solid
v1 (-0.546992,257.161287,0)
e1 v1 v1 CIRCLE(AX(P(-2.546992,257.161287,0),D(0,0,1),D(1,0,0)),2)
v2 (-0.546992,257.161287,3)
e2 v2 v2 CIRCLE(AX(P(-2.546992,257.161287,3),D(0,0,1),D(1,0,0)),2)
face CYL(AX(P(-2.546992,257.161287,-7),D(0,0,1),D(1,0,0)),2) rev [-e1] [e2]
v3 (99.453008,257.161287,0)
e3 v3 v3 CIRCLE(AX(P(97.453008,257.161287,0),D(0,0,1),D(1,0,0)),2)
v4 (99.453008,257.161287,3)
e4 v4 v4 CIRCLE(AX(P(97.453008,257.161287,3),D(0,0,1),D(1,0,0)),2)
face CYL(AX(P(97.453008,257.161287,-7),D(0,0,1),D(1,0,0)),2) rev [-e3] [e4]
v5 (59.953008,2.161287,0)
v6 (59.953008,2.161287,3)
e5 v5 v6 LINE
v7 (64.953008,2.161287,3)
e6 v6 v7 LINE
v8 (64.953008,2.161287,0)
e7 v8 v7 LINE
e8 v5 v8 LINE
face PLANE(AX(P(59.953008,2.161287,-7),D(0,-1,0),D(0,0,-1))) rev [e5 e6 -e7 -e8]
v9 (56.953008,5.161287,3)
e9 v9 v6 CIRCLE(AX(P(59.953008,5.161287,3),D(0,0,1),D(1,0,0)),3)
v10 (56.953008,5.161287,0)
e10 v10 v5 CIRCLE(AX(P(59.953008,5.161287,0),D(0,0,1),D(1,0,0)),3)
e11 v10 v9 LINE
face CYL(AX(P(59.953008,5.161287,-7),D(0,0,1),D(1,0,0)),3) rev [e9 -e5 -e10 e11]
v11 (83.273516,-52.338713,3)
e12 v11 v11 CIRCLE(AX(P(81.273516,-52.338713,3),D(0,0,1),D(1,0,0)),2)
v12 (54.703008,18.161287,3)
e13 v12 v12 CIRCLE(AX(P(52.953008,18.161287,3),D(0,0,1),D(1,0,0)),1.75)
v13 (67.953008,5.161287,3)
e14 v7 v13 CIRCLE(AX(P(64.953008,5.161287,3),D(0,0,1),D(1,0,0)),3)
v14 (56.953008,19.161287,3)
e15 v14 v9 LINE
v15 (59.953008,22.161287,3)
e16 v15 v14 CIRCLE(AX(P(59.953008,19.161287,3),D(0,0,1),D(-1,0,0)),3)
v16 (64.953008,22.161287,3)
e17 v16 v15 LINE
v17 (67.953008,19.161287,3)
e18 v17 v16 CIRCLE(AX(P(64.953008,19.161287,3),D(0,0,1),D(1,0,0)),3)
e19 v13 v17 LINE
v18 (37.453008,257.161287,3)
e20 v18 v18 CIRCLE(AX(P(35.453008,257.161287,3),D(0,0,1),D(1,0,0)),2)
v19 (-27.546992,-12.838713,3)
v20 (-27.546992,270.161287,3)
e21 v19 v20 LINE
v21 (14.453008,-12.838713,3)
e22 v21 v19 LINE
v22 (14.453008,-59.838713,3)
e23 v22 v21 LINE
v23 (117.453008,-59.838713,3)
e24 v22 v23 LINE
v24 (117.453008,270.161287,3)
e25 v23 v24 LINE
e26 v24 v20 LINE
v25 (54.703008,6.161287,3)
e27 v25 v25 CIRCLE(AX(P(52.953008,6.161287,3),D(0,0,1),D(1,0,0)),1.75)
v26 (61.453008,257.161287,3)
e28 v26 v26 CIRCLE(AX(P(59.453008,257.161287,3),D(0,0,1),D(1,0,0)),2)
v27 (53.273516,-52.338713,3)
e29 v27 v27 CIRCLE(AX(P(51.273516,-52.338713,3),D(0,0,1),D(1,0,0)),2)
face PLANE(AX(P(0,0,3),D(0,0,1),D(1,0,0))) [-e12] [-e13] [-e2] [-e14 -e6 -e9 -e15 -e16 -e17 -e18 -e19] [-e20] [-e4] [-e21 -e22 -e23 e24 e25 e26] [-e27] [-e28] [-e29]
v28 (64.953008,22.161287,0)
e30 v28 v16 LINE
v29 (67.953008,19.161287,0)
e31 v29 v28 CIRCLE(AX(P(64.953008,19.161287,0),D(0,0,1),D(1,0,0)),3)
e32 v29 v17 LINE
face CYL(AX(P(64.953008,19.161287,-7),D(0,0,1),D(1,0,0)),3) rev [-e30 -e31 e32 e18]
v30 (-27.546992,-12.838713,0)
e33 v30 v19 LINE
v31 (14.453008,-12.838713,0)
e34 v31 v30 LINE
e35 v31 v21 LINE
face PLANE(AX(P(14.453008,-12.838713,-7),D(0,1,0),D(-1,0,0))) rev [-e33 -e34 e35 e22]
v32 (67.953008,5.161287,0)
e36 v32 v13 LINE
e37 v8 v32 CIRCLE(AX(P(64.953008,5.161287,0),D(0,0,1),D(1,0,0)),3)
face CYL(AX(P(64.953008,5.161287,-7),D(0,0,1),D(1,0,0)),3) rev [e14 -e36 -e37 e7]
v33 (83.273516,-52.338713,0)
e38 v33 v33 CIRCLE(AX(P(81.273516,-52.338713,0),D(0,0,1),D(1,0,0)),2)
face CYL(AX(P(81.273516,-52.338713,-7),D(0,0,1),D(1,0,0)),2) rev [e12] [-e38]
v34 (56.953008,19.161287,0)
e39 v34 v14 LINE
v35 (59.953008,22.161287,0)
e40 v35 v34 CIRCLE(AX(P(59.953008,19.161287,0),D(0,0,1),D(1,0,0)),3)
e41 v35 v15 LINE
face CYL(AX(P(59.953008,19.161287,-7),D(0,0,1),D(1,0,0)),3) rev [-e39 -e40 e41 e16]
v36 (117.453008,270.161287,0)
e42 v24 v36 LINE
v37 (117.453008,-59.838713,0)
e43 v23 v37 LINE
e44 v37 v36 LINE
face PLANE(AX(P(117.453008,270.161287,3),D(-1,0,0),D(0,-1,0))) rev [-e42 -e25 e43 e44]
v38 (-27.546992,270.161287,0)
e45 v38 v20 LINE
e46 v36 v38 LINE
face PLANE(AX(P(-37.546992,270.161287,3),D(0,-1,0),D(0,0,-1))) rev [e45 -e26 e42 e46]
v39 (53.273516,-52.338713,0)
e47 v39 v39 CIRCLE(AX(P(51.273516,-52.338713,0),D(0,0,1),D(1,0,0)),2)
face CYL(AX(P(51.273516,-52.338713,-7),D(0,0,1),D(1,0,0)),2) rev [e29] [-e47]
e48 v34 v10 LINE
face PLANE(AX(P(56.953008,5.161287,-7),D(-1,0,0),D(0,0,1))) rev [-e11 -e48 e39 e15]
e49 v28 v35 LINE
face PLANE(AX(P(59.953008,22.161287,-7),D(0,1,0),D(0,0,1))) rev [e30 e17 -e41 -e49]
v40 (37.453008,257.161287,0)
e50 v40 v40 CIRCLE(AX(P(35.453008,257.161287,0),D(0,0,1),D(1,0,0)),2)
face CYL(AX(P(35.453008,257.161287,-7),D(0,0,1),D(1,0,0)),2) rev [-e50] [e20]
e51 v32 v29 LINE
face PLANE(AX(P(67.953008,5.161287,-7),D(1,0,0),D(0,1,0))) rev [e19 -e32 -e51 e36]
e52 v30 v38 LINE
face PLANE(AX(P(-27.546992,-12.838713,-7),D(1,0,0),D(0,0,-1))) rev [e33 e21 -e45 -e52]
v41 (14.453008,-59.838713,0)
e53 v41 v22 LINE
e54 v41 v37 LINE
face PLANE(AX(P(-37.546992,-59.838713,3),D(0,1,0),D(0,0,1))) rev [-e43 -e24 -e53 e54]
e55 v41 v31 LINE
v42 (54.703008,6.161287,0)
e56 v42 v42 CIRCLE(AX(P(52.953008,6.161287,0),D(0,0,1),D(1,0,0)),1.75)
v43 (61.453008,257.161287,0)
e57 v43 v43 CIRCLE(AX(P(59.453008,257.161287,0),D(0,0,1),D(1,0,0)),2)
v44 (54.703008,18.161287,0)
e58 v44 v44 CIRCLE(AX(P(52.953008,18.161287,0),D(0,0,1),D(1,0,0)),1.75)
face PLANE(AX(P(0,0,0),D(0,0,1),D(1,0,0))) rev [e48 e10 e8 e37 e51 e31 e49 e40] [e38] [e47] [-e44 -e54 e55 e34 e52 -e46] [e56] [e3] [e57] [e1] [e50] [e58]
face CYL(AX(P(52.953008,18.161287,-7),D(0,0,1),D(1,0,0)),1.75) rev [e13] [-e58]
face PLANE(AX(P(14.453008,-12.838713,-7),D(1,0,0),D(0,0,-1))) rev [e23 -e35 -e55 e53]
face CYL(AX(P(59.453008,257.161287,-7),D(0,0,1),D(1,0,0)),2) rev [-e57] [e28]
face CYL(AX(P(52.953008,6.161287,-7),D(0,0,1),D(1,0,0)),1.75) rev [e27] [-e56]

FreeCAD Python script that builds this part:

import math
import FreeCAD as App
import Part
import Sketcher
Q = App.Units.Quantity

doc = App.newDocument("Part")
params = doc.addObject("Spreadsheet::Sheet", "Params")
for row, (alias, value) in enumerate([
    ("sketch1_width", "155 mm"),
    ("sketch1_height", "330 mm"),
    ("pad1_length", "3 mm"),
    ("sketch2_width", "10 mm"),
    ("sketch2_width2", "52 mm"),
    ("sketch2_height", "283 mm"),
    ("sketch2_height2", "330 mm"),
    ("pocket1_length", "10 mm"),
    ("sketch3_diameter", "4 mm"),
    ("pocket2_length", "10 mm"),
    ("sketch4_radius", "3 mm"),
    ("sketch4_diameter", "3.5 mm"),
    ("sketch4_width", "5 mm"),
    ("sketch4_height", "14 mm"),
    ("pocket3_length", "10 mm"),
], start=1):
    params.set(f"A{row}", alias)
    params.set(f"B{row}", "=" + value)
    params.setAlias(f"B{row}", alias)

body = doc.addObject("PartDesign::Body", "Body")

# Sketch on XY plane
sketch1 = body.newObject("Sketcher::SketchObject", "Sketch")
sketch1.AttachmentSupport = (doc.getObject("XY_Plane"), [""])
sketch1.MapMode = "FlatFace"
sketch1.addGeometry(Part.LineSegment(App.Vector(-37.546992, 270.161287, 0), App.Vector(-37.546992, -59.838713, 0)), False)
sketch1.addGeometry(Part.LineSegment(App.Vector(-37.546992, -59.838713, 0), App.Vector(117.453008, -59.838713, 0)), False)
sketch1.addGeometry(Part.LineSegment(App.Vector(117.453008, -59.838713, 0), App.Vector(117.453008, 270.161287, 0)), False)
sketch1.addGeometry(Part.LineSegment(App.Vector(117.453008, 270.161287, 0), App.Vector(-37.546992, 270.161287, 0)), False)
sketch1.addConstraint(Sketcher.Constraint("Coincident", 0, 2, 1, 1))
sketch1.addConstraint(Sketcher.Constraint("Coincident", 1, 2, 2, 1))
sketch1.addConstraint(Sketcher.Constraint("Coincident", 2, 2, 3, 1))
sketch1.addConstraint(Sketcher.Constraint("Coincident", 3, 2, 0, 1))
sketch1.addConstraint(Sketcher.Constraint("Vertical", 0))
sketch1.addConstraint(Sketcher.Constraint("Horizontal", 1))
sketch1.addConstraint(Sketcher.Constraint("Vertical", 2))
sketch1.addConstraint(Sketcher.Constraint("Horizontal", 3))
sketch1.addConstraint(Sketcher.Constraint("DistanceX", 1, 1, 1, 2, Q("155 mm")))
sketch1.addConstraint(Sketcher.Constraint("DistanceY", 0, 2, 0, 1, Q("330 mm")))
sketch1.addConstraint(Sketcher.Constraint("DistanceX", 0, 2, -1, 1, Q("37.546992 mm")))
sketch1.addConstraint(Sketcher.Constraint("DistanceY", 0, 2, -1, 1, Q("59.838713 mm")))
sketch1.setExpression("Constraints[8]", "Params.sketch1_width")
sketch1.setExpression("Constraints[9]", "Params.sketch1_height")
pad1 = body.newObject("PartDesign::Pad", "Pad")
pad1.Profile = sketch1
pad1.setExpression("Length", "Params.pad1_length")

# Sketch on XY plane
sketch2 = body.newObject("Sketcher::SketchObject", "Sketch001")
sketch2.AttachmentSupport = (doc.getObject("XY_Plane"), [""])
sketch2.MapMode = "FlatFace"
sketch2.AttachmentOffset = App.Placement(App.Vector(0, 0, 3), App.Rotation())
sketch2.addGeometry(Part.LineSegment(App.Vector(-27.546992, -12.838713, 0), App.Vector(-27.546992, 270.161287, 0)), False)
sketch2.addGeometry(Part.LineSegment(App.Vector(-27.546992, 270.161287, 0), App.Vector(-37.546992, 270.161287, 0)), False)
sketch2.addGeometry(Part.LineSegment(App.Vector(-37.546992, 270.161287, 0), App.Vector(-37.546992, -59.838713, 0)), False)
sketch2.addGeometry(Part.LineSegment(App.Vector(-37.546992, -59.838713, 0), App.Vector(14.453008, -59.838713, 0)), False)
sketch2.addGeometry(Part.LineSegment(App.Vector(14.453008, -59.838713, 0), App.Vector(14.453008, -12.838713, 0)), False)
sketch2.addGeometry(Part.LineSegment(App.Vector(14.453008, -12.838713, 0), App.Vector(-27.546992, -12.838713, 0)), False)
sketch2.addConstraint(Sketcher.Constraint("Coincident", 0, 2, 1, 1))
sketch2.addConstraint(Sketcher.Constraint("Coincident", 1, 2, 2, 1))
sketch2.addConstraint(Sketcher.Constraint("Coincident", 2, 2, 3, 1))
sketch2.addConstraint(Sketcher.Constraint("Coincident", 3, 2, 4, 1))
sketch2.addConstraint(Sketcher.Constraint("Coincident", 4, 2, 5, 1))
sketch2.addConstraint(Sketcher.Constraint("Coincident", 5, 2, 0, 1))
sketch2.addConstraint(Sketcher.Constraint("Vertical", 0))
sketch2.addConstraint(Sketcher.Constraint("Horizontal", 1))
sketch2.addConstraint(Sketcher.Constraint("Vertical", 2))
sketch2.addConstraint(Sketcher.Constraint("Horizontal", 3))
sketch2.addConstraint(Sketcher.Constraint("Vertical", 4))
sketch2.addConstraint(Sketcher.Constraint("Horizontal", 5))
sketch2.addConstraint(Sketcher.Constraint("DistanceX", 1, 2, 1, 1, Q("10 mm")))
sketch2.addConstraint(Sketcher.Constraint("DistanceX", 3, 1, 3, 2, Q("52 mm")))
sketch2.addConstraint(Sketcher.Constraint("DistanceY", 0, 1, 0, 2, Q("283 mm")))
sketch2.addConstraint(Sketcher.Constraint("DistanceY", 2, 2, 2, 1, Q("330 mm")))
sketch2.addConstraint(Sketcher.Constraint("DistanceX", 0, 2, -1, 1, Q("27.546992 mm")))
sketch2.addConstraint(Sketcher.Constraint("DistanceY", -1, 1, 0, 2, Q("270.161287 mm")))
sketch2.setExpression("Constraints[12]", "Params.sketch2_width")
sketch2.setExpression("Constraints[13]", "Params.sketch2_width2")
sketch2.setExpression("Constraints[14]", "Params.sketch2_height")
sketch2.setExpression("Constraints[15]", "Params.sketch2_height2")
pocket1 = body.newObject("PartDesign::Pocket", "Pocket")
pocket1.Profile = sketch2
pocket1.setExpression("Length", "Params.pocket1_length")

# Sketch on XY plane
sketch3 = body.newObject("Sketcher::SketchObject", "Sketch002")
sketch3.AttachmentSupport = (doc.getObject("XY_Plane"), [""])
sketch3.MapMode = "FlatFace"
sketch3.AttachmentOffset = App.Placement(App.Vector(0, 0, 3), App.Rotation())
sketch3.addGeometry(Part.Circle(App.Vector(51.273516, -52.338713, 0), App.Vector(0, 0, 1), 2), False)
sketch3.addGeometry(Part.Circle(App.Vector(81.273516, -52.338713, 0), App.Vector(0, 0, 1), 2), False)
sketch3.addGeometry(Part.Circle(App.Vector(-2.546992, 257.161287, 0), App.Vector(0, 0, 1), 2), False)
sketch3.addGeometry(Part.Circle(App.Vector(35.453008, 257.161287, 0), App.Vector(0, 0, 1), 2), False)
sketch3.addGeometry(Part.Circle(App.Vector(59.453008, 257.161287, 0), App.Vector(0, 0, 1), 2), False)
sketch3.addGeometry(Part.Circle(App.Vector(97.453008, 257.161287, 0), App.Vector(0, 0, 1), 2), False)
sketch3.addConstraint(Sketcher.Constraint("Equal", 0, 1))
sketch3.addConstraint(Sketcher.Constraint("Equal", 1, 2))
sketch3.addConstraint(Sketcher.Constraint("Equal", 2, 3))
sketch3.addConstraint(Sketcher.Constraint("Equal", 3, 4))
sketch3.addConstraint(Sketcher.Constraint("Equal", 4, 5))
sketch3.addConstraint(Sketcher.Constraint("Horizontal", 0, 3, 1, 3))
sketch3.addConstraint(Sketcher.Constraint("Horizontal", 2, 3, 3, 3))
sketch3.addConstraint(Sketcher.Constraint("Horizontal", 3, 3, 4, 3))
sketch3.addConstraint(Sketcher.Constraint("Horizontal", 4, 3, 5, 3))
sketch3.addConstraint(Sketcher.Constraint("Diameter", 0, Q("4 mm")))
sketch3.addConstraint(Sketcher.Constraint("DistanceX", 0, 3, 1, 3, Q("30 mm")))
sketch3.addConstraint(Sketcher.Constraint("DistanceX", 2, 3, 3, 3, Q("38 mm")))
sketch3.addConstraint(Sketcher.Constraint("DistanceX", 3, 3, 4, 3, Q("24 mm")))
sketch3.addConstraint(Sketcher.Constraint("DistanceX", 4, 3, 5, 3, Q("38 mm")))
sketch3.addConstraint(Sketcher.Constraint("DistanceY", 0, 3, 2, 3, Q("309.5 mm")))
sketch3.addConstraint(Sketcher.Constraint("DistanceX", 2, 3, -1, 1, Q("2.546992 mm")))
sketch3.addConstraint(Sketcher.Constraint("DistanceX", 2, 3, 0, 3, Q("53.820508 mm")))
sketch3.addConstraint(Sketcher.Constraint("DistanceY", 0, 3, -1, 1, Q("52.338713 mm")))
sketch3.setExpression("Constraints[9]", "Params.sketch3_diameter")
pocket2 = body.newObject("PartDesign::Pocket", "Pocket001")
pocket2.Profile = sketch3
pocket2.setExpression("Length", "Params.pocket2_length")

# Sketch on XY plane
sketch4 = body.newObject("Sketcher::SketchObject", "Sketch003")
sketch4.AttachmentSupport = (doc.getObject("XY_Plane"), [""])
sketch4.MapMode = "FlatFace"
sketch4.AttachmentOffset = App.Placement(App.Vector(0, 0, 3), App.Rotation())
sketch4.addGeometry(Part.Circle(App.Vector(52.953008, 18.161287, 0), App.Vector(0, 0, 1), 1.75), False)
sketch4.addGeometry(Part.Circle(App.Vector(52.953008, 6.161287, 0), App.Vector(0, 0, 1), 1.75), False)
sketch4.addGeometry(Part.LineSegment(App.Vector(56.953008, 19.161287, 0), App.Vector(56.953008, 5.161287, 0)), False)
sketch4.addGeometry(Part.ArcOfCircle(Part.Circle(App.Vector(59.953008, 5.161287, 0), App.Vector(0, 0, 1), 3), math.radians(180), math.radians(270)), False)
sketch4.addGeometry(Part.LineSegment(App.Vector(59.953008, 2.161287, 0), App.Vector(64.953008, 2.161287, 0)), False)
sketch4.addGeometry(Part.ArcOfCircle(Part.Circle(App.Vector(64.953008, 5.161287, 0), App.Vector(0, 0, 1), 3), math.radians(-90), math.radians(0)), False)
sketch4.addGeometry(Part.LineSegment(App.Vector(67.953008, 5.161287, 0), App.Vector(67.953008, 19.161287, 0)), False)
sketch4.addGeometry(Part.ArcOfCircle(Part.Circle(App.Vector(64.953008, 19.161287, 0), App.Vector(0, 0, 1), 3), math.radians(0), math.radians(90)), False)
sketch4.addGeometry(Part.LineSegment(App.Vector(64.953008, 22.161287, 0), App.Vector(59.953008, 22.161287, 0)), False)
sketch4.addGeometry(Part.ArcOfCircle(Part.Circle(App.Vector(59.953008, 19.161287, 0), App.Vector(0, 0, 1), 3), math.radians(90), math.radians(180)), False)
sketch4.addConstraint(Sketcher.Constraint("Tangent", 2, 2, 3, 1))
sketch4.addConstraint(Sketcher.Constraint("Tangent", 3, 2, 4, 1))
sketch4.addConstraint(Sketcher.Constraint("Tangent", 4, 2, 5, 1))
sketch4.addConstraint(Sketcher.Constraint("Tangent", 5, 2, 6, 1))
sketch4.addConstraint(Sketcher.Constraint("Tangent", 6, 2, 7, 1))
sketch4.addConstraint(Sketcher.Constraint("Tangent", 7, 2, 8, 1))
sketch4.addConstraint(Sketcher.Constraint("Tangent", 8, 2, 9, 1))
sketch4.addConstraint(Sketcher.Constraint("Tangent", 9, 2, 2, 1))
sketch4.addConstraint(Sketcher.Constraint("Vertical", 2))
sketch4.addConstraint(Sketcher.Constraint("Horizontal", 4))
sketch4.addConstraint(Sketcher.Constraint("Vertical", 6))
sketch4.addConstraint(Sketcher.Constraint("Horizontal", 8))
sketch4.addConstraint(Sketcher.Constraint("Equal", 0, 1))
sketch4.addConstraint(Sketcher.Constraint("Equal", 3, 5))
sketch4.addConstraint(Sketcher.Constraint("Equal", 5, 7))
sketch4.addConstraint(Sketcher.Constraint("Equal", 7, 9))
sketch4.addConstraint(Sketcher.Constraint("Vertical", 0, 3, 1, 3))
sketch4.addConstraint(Sketcher.Constraint("Radius", 3, Q("3 mm")))
sketch4.addConstraint(Sketcher.Constraint("Diameter", 0, Q("3.5 mm")))
sketch4.addConstraint(Sketcher.Constraint("DistanceX", 4, 1, 4, 2, Q("5 mm")))
sketch4.addConstraint(Sketcher.Constraint("DistanceY", 2, 2, 2, 1, Q("14 mm")))
sketch4.addConstraint(Sketcher.Constraint("DistanceY", 1, 3, 0, 3, Q("12 mm")))
sketch4.addConstraint(Sketcher.Constraint("DistanceX", 1, 3, 3, 3, Q("7 mm")))
sketch4.addConstraint(Sketcher.Constraint("DistanceY", 3, 3, 1, 3, Q("1 mm")))
sketch4.addConstraint(Sketcher.Constraint("DistanceX", -1, 1, 0, 3, Q("52.953008 mm")))
sketch4.addConstraint(Sketcher.Constraint("DistanceY", -1, 1, 0, 3, Q("18.161287 mm")))
sketch4.setExpression("Constraints[17]", "Params.sketch4_radius")
sketch4.setExpression("Constraints[18]", "Params.sketch4_diameter")
sketch4.setExpression("Constraints[19]", "Params.sketch4_width")
sketch4.setExpression("Constraints[20]", "Params.sketch4_height")
pocket3 = body.newObject("PartDesign::Pocket", "Pocket002")
pocket3.Profile = sketch4
pocket3.setExpression("Length", "Params.pocket3_length")

doc.recompute()
